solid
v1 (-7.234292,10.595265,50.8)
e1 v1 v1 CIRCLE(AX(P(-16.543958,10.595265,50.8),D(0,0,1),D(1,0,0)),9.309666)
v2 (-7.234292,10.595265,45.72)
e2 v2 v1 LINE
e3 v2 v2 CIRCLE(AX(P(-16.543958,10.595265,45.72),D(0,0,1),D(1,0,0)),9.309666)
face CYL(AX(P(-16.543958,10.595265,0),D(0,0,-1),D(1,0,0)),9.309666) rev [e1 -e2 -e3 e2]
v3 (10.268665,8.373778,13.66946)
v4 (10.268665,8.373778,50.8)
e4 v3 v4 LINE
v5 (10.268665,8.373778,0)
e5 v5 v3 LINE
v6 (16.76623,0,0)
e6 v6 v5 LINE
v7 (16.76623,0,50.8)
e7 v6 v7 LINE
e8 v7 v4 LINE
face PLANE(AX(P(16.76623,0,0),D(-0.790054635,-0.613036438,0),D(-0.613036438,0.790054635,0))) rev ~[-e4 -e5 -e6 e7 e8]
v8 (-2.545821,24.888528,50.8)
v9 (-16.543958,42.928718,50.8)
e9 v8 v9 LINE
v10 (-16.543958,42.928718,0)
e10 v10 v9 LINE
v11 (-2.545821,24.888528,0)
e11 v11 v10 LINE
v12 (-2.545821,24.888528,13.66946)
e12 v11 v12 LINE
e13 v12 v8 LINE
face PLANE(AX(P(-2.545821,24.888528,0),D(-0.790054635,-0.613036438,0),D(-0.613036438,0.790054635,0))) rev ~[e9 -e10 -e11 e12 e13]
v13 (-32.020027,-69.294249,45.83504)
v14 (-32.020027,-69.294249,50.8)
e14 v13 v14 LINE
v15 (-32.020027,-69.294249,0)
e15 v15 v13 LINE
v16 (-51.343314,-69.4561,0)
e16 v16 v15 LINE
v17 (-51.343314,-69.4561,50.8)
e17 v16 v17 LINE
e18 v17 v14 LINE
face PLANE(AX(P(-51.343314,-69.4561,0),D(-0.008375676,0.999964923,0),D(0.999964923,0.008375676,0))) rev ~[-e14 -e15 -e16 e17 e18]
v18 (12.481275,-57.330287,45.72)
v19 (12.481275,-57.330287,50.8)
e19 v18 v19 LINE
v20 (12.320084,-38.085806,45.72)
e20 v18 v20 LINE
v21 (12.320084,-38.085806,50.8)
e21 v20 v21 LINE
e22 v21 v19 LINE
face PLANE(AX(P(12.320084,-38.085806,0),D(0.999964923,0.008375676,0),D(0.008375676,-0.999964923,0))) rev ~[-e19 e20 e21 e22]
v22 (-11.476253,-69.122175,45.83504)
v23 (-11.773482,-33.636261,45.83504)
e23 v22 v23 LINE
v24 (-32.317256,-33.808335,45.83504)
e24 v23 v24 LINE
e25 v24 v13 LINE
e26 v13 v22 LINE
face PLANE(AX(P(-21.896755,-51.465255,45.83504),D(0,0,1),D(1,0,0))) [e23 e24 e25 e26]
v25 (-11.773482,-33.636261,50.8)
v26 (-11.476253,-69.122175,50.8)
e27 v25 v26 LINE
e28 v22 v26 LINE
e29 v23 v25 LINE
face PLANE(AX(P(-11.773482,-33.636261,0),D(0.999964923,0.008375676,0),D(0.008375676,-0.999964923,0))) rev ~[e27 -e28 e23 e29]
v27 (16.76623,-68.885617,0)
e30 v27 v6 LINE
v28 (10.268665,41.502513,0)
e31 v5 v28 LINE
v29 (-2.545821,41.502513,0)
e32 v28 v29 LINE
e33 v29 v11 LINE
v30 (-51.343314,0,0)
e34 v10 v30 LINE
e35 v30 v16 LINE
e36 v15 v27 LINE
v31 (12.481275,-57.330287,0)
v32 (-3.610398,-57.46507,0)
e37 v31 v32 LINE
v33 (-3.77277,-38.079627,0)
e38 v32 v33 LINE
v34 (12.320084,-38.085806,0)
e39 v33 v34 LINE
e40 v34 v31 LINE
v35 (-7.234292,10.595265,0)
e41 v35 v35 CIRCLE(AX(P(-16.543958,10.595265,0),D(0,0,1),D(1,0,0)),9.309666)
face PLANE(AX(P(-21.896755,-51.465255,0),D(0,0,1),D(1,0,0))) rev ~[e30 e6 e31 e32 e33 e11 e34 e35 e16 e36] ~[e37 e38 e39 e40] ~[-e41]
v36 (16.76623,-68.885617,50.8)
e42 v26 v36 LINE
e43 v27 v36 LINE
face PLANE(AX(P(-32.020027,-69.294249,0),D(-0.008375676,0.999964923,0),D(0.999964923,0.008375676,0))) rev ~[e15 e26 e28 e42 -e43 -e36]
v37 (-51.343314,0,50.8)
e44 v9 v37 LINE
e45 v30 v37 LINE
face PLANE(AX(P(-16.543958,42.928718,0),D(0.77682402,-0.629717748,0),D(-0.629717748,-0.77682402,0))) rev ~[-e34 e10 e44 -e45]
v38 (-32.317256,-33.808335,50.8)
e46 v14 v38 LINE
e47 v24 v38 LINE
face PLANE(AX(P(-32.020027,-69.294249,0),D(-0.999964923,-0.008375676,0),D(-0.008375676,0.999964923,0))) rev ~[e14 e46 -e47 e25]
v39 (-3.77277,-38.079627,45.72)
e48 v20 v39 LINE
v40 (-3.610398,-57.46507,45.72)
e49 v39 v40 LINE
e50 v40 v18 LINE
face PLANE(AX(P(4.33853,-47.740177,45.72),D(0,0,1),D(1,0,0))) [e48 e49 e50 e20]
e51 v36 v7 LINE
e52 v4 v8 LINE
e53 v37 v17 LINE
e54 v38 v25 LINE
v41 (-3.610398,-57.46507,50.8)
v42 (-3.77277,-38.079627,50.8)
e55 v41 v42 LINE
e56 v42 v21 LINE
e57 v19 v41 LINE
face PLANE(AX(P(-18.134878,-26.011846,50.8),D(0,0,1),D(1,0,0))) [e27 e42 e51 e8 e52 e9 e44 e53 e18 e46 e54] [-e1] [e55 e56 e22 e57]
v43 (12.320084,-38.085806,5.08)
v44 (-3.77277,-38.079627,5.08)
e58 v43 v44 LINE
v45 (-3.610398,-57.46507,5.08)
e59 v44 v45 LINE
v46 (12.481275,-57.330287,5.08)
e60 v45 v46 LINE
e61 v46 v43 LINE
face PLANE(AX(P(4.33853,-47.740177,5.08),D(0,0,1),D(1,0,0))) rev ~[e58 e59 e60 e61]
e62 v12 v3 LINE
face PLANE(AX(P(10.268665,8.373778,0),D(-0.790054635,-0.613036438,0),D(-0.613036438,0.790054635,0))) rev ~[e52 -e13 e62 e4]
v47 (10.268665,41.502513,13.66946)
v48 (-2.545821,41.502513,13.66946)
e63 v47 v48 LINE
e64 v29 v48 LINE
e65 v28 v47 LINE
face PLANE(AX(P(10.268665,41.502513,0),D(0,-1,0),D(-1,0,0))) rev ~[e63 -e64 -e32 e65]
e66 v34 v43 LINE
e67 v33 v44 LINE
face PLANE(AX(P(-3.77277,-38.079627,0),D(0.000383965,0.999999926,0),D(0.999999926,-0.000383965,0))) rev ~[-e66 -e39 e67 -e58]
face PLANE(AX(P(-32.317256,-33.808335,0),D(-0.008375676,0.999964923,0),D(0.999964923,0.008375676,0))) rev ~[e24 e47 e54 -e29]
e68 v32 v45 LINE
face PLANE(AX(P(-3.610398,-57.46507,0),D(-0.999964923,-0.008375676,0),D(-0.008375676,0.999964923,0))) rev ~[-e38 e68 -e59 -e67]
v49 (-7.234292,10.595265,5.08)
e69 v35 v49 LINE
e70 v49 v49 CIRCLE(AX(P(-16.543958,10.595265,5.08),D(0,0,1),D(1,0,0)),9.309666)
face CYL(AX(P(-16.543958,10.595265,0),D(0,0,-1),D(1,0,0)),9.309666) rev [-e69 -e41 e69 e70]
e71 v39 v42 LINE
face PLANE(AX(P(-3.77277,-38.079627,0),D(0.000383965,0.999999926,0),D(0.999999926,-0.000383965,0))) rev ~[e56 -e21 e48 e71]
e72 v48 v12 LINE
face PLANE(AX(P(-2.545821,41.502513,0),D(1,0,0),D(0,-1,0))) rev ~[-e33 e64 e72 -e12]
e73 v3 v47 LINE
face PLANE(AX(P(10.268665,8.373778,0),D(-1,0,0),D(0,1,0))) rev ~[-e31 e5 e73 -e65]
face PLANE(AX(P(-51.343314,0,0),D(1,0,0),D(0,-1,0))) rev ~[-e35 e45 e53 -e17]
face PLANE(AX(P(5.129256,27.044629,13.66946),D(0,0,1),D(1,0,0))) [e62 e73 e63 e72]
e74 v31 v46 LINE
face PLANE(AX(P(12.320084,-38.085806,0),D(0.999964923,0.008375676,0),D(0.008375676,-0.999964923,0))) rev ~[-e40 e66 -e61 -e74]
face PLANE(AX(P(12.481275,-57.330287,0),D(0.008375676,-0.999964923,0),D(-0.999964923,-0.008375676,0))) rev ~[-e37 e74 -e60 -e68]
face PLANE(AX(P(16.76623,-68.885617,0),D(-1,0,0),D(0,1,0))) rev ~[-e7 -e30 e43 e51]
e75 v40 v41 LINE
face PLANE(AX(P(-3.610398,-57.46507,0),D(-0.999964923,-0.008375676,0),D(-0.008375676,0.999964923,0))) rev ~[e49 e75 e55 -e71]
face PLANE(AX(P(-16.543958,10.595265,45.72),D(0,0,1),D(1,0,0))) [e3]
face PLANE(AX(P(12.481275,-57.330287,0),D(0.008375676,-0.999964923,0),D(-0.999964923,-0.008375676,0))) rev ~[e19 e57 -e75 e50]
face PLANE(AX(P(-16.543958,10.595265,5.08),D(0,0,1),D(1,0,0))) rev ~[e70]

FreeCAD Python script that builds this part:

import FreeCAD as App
import Part
import Sketcher
Q = App.Units.Quantity

doc = App.newDocument("Part")
body = doc.addObject("PartDesign::Body", "Body")

# Sketch on XY plane
sketch1 = doc.addObject("Sketcher::SketchObject", "Sketch")
body.addObject(sketch1)
sketch1.AttachmentSupport = (doc.XY_Plane, [""])
sketch1.MapMode = "FlatFace"
sketch1.addGeometry(Part.LineSegment(App.Vector(-51.343314, 0, 0), App.Vector(-51.343314, -69.4561, 0)), False)
sketch1.addGeometry(Part.LineSegment(App.Vector(-51.343314, -69.4561, 0), App.Vector(-32.020027, -69.294249, 0)), False)
sketch1.addGeometry(Part.LineSegment(App.Vector(-32.020027, -69.294249, 0), App.Vector(-32.317256, -33.808335, 0)), False)
sketch1.addGeometry(Part.LineSegment(App.Vector(-32.317256, -33.808335, 0), App.Vector(-11.773482, -33.636261, 0)), False)
sketch1.addGeometry(Part.LineSegment(App.Vector(-11.773482, -33.636261, 0), App.Vector(-11.476253, -69.122175, 0)), False)
sketch1.addGeometry(Part.LineSegment(App.Vector(-11.476253, -69.122175, 0), App.Vector(16.76623, -68.885617, 0)), False)
sketch1.addGeometry(Part.LineSegment(App.Vector(16.76623, -68.885617, 0), App.Vector(16.76623, 0, 0)), False)
sketch1.addGeometry(Part.LineSegment(App.Vector(16.76623, 0, 0), App.Vector(10.268665, 8.373778, 0)), False)
sketch1.addGeometry(Part.LineSegment(App.Vector(10.268665, 8.373778, 0), App.Vector(-2.545821, 24.888528, 0)), False)
sketch1.addGeometry(Part.LineSegment(App.Vector(-2.545821, 24.888528, 0), App.Vector(-16.543958, 42.928718, 0)), False)
sketch1.addGeometry(Part.LineSegment(App.Vector(-16.543958, 42.928718, 0), App.Vector(-51.343314, 0, 0)), False)
sketch1.addGeometry(Part.LineSegment(App.Vector(12.481275, -57.330287, 0), App.Vector(-3.610398, -57.46507, 0)), False)
sketch1.addGeometry(Part.LineSegment(App.Vector(-3.610398, -57.46507, 0), App.Vector(-3.77277, -38.079627, 0)), False)
sketch1.addGeometry(Part.LineSegment(App.Vector(-3.77277, -38.079627, 0), App.Vector(12.320084, -38.085806, 0)), False)
sketch1.addGeometry(Part.LineSegment(App.Vector(12.320084, -38.085806, 0), App.Vector(12.481275, -57.330287, 0)), False)
sketch1.addGeometry(Part.Circle(App.Vector(-16.543958, 10.595265, 0), App.Vector(0, 0, 1), 9.309666), False)
sketch1.addConstraint(Sketcher.Constraint("Coincident", 0, 2, 1, 1))
sketch1.addConstraint(Sketcher.Constraint("Coincident", 1, 2, 2, 1))
sketch1.addConstraint(Sketcher.Constraint("Coincident", 2, 2, 3, 1))
sketch1.addConstraint(Sketcher.Constraint("Coincident", 3, 2, 4, 1))
sketch1.addConstraint(Sketcher.Constraint("Coincident", 4, 2, 5, 1))
sketch1.addConstraint(Sketcher.Constraint("Coincident", 5, 2, 6, 1))
sketch1.addConstraint(Sketcher.Constraint("Coincident", 6, 2, 7, 1))
sketch1.addConstraint(Sketcher.Constraint("Coincident", 7, 2, 8, 1))
sketch1.addConstraint(Sketcher.Constraint("Coincident", 8, 2, 9, 1))
sketch1.addConstraint(Sketcher.Constraint("Coincident", 9, 2, 10, 1))
sketch1.addConstraint(Sketcher.Constraint("Coincident", 10, 2, 0, 1))
sketch1.addConstraint(Sketcher.Constraint("Coincident", 11, 2, 12, 1))
sketch1.addConstraint(Sketcher.Constraint("Coincident", 12, 2, 13, 1))
sketch1.addConstraint(Sketcher.Constraint("Coincident", 13, 2, 14, 1))
sketch1.addConstraint(Sketcher.Constraint("Coincident", 14, 2, 11, 1))
sketch1.addConstraint(Sketcher.Constraint("Vertical", 0))
sketch1.addConstraint(Sketcher.Constraint("Vertical", 6))
sketch1.addConstraint(Sketcher.Constraint("PointOnObject", 6, 2, -1))
sketch1.addConstraint(Sketcher.Constraint("PointOnObject", 10, 2, -1))
sketch1.addConstraint(Sketcher.Constraint("Perpendicular", 1, 2))
sketch1.addConstraint(Sketcher.Constraint("Perpendicular", 2, 3))
sketch1.addConstraint(Sketcher.Constraint("Perpendicular", 3, 4))
sketch1.addConstraint(Sketcher.Constraint("Perpendicular", 4, 5))
sketch1.addConstraint(Sketcher.Constraint("Parallel", 7, 8))
sketch1.addConstraint(Sketcher.Constraint("Parallel", 8, 9))
sketch1.addConstraint(Sketcher.Constraint("Parallel", 5, 11))
sketch1.addConstraint(Sketcher.Constraint("Perpendicular", 11, 12))
sketch1.addConstraint(Sketcher.Constraint("Parallel", 12, 14))
sketch1.addConstraint(Sketcher.Constraint("Vertical", 15, 3, 9, 2))
sketch1.addConstraint(Sketcher.Constraint("Equal", 2, 4))
sketch1.addConstraint(Sketcher.Constraint("Diameter", 15, Q("18.619332 mm")))
sketch1.addConstraint(Sketcher.Constraint("DistanceY", 0, 2, 0, 1, Q("69.4561 mm")))
sketch1.addConstraint(Sketcher.Constraint("DistanceY", 2, 2, 8, 2, Q("2.3109001 in")))
sketch1.addConstraint(Sketcher.Constraint("DistanceY", 14, 2, 12, 2, Q("0.7579 in")))
sketch1.addConstraint(Sketcher.Constraint("Distance", 8, Q("20.903301 mm")))
sketch1.addConstraint(Sketcher.Constraint("DistanceY", 2, 2, 15, 3, Q("44.4036 mm")))
sketch1.addConstraint(Sketcher.Constraint("DistanceX", 12, 2, 5, 2, Q("20.538999 mm")))
sketch1.addConstraint(Sketcher.Constraint("Distance", 2, Q("35.487159 mm")))
sketch1.addConstraint(Sketcher.Constraint("Distance", 10, Q("55.261831 mm")))
sketch1.addConstraint(Sketcher.Constraint("DistanceY", 6, 1, 6, 2, Q("68.885617 mm")))
sketch1.addConstraint(Sketcher.Constraint("DistanceX", 15, 3, -1, 1, Q("16.543958 mm")))
sketch1.addConstraint(Sketcher.Constraint("DistanceY", 1, 2, -1, 1, Q("69.294249 mm")))
sketch1.addConstraint(Sketcher.Constraint("DistanceY", 3, 2, -1, 1, Q("33.636261 mm")))
sketch1.addConstraint(Sketcher.Constraint("DistanceX", -1, 1, 5, 2, Q("16.76623 mm")))
sketch1.addConstraint(Sketcher.Constraint("DistanceY", -1, 1, 7, 2, Q("8.373778 mm")))
sketch1.addConstraint(Sketcher.Constraint("DistanceY", 11, 2, -1, 1, Q("57.46507 mm")))
sketch1.addConstraint(Sketcher.Constraint("DistanceY", 12, 2, 2, 2, Q("4.271292 mm")))
sketch1.addConstraint(Sketcher.Constraint("DistanceY", 13, 2, 12, 2, Q("0.006179 mm")))
pad1 = doc.addObject("PartDesign::Pad", "Pad")
body.addObject(pad1)
pad1.Profile = sketch1
pad1.Length = Q("2 in")

# Sketch on XY plane
sketch2 = doc.addObject("Sketcher::SketchObject", "Sketch001")
body.addObject(sketch2)
sketch2.AttachmentSupport = (doc.XY_Plane, [""])
sketch2.MapMode = "FlatFace"
sketch2.addGeometry(Part.LineSegment(App.Vector(-2.545821, 41.502513, 0), App.Vector(-2.545821, 24.888528, 0)), False)
sketch2.addGeometry(Part.LineSegment(App.Vector(-2.545821, 24.888528, 0), App.Vector(10.268665, 8.373778, 0)), False)
sketch2.addGeometry(Part.LineSegment(App.Vector(10.268665, 8.373778, 0), App.Vector(10.268665, 41.502513, 0)), False)
sketch2.addGeometry(Part.LineSegment(App.Vector(10.268665, 41.502513, 0), App.Vector(-2.545821, 41.502513, 0)), False)
sketch2.addConstraint(Sketcher.Constraint("Coincident", 0, 2, 1, 1))
sketch2.addConstraint(Sketcher.Constraint("Coincident", 1, 2, 2, 1))
sketch2.addConstraint(Sketcher.Constraint("Coincident", 2, 2, 3, 1))
sketch2.addConstraint(Sketcher.Constraint("Coincident", 3, 2, 0, 1))
sketch2.addConstraint(Sketcher.Constraint("Vertical", 0))
sketch2.addConstraint(Sketcher.Constraint("Vertical", 2))
sketch2.addConstraint(Sketcher.Constraint("Horizontal", 3))
sketch2.addConstraint(Sketcher.Constraint("Distance", 1, Q("20.903301 mm")))
sketch2.addConstraint(Sketcher.Constraint("DistanceX", 3, 2, 3, 1, Q("12.814485 mm")))
sketch2.addConstraint(Sketcher.Constraint("DistanceY", 0, 2, 0, 1, Q("16.613985 mm")))
sketch2.addConstraint(Sketcher.Constraint("DistanceX", 0, 2, -1, 1, Q("2.545821 mm")))
sketch2.addConstraint(Sketcher.Constraint("DistanceY", -1, 1, 0, 2, Q("24.888528 mm")))
pad2 = doc.addObject("PartDesign::Pad", "Pad001")
body.addObject(pad2)
pad2.Profile = sketch2
pad2.Length = 13.66946

# Sketch on XY plane
sketch3 = doc.addObject("Sketcher::SketchObject", "Sketch002")
body.addObject(sketch3)
sketch3.AttachmentSupport = (doc.XY_Plane, [""])
sketch3.MapMode = "FlatFace"
sketch3.addGeometry(Part.LineSegment(App.Vector(-32.317256, -33.808335, 0), App.Vector(-32.020027, -69.294249, 0)), False)
sketch3.addGeometry(Part.LineSegment(App.Vector(-32.020027, -69.294249, 0), App.Vector(-11.476253, -69.122175, 0)), False)
sketch3.addGeometry(Part.LineSegment(App.Vector(-11.476253, -69.122175, 0), App.Vector(-11.773482, -33.636261, 0)), False)
sketch3.addGeometry(Part.LineSegment(App.Vector(-11.773482, -33.636261, 0), App.Vector(-32.317256, -33.808335, 0)), False)
sketch3.addConstraint(Sketcher.Constraint("Coincident", 0, 2, 1, 1))
sketch3.addConstraint(Sketcher.Constraint("Coincident", 1, 2, 2, 1))
sketch3.addConstraint(Sketcher.Constraint("Coincident", 2, 2, 3, 1))
sketch3.addConstraint(Sketcher.Constraint("Coincident", 3, 2, 0, 1))
sketch3.addConstraint(Sketcher.Constraint("Perpendicular", 0, 1))
sketch3.addConstraint(Sketcher.Constraint("Perpendicular", 1, 2))
sketch3.addConstraint(Sketcher.Constraint("Perpendicular", 2, 3))
sketch3.addConstraint(Sketcher.Constraint("Distance", 0, Q("35.487159 mm")))
sketch3.addConstraint(Sketcher.Constraint("DistanceY", 0, 2, -1, 1, Q("69.294249 mm")))
sketch3.addConstraint(Sketcher.Constraint("DistanceY", 2, 2, -1, 1, Q("33.636261 mm")))
sketch3.addConstraint(Sketcher.Constraint("DistanceX", 2, 2, 1, 2, Q("0.297229 mm")))
sketch3.addConstraint(Sketcher.Constraint("DistanceX", 0, 2, -1, 1, Q("32.020027 mm")))
pad3 = doc.addObject("PartDesign::Pad", "Pad002")
body.addObject(pad3)
pad3.Profile = sketch3
pad3.Length = 45.83504

# Sketch on XY plane
sketch4 = doc.addObject("Sketcher::SketchObject", "Sketch003")
body.addObject(sketch4)
sketch4.AttachmentSupport = (doc.XY_Plane, [""])
sketch4.MapMode = "FlatFace"
sketch4.AttachmentOffset = App.Placement(App.Vector(0, 0, 0.2 * 25.4), App.Rotation())
sketch4.addGeometry(Part.LineSegment(App.Vector(12.320084, -38.085806, 0), App.Vector(-3.77277, -38.079627, 0)), False)
sketch4.addGeometry(Part.LineSegment(App.Vector(-3.77277, -38.079627, 0), App.Vector(-3.610398, -57.46507, 0)), False)
sketch4.addGeometry(Part.LineSegment(App.Vector(-3.610398, -57.46507, 0), App.Vector(12.481275, -57.330287, 0)), False)
sketch4.addGeometry(Part.LineSegment(App.Vector(12.481275, -57.330287, 0), App.Vector(12.320084, -38.085806, 0)), False)
sketch4.addConstraint(Sketcher.Constraint("Coincident", 0, 2, 1, 1))
sketch4.addConstraint(Sketcher.Constraint("Coincident", 1, 2, 2, 1))
sketch4.addConstraint(Sketcher.Constraint("Coincident", 2, 2, 3, 1))
sketch4.addConstraint(Sketcher.Constraint("Coincident", 3, 2, 0, 1))
sketch4.addConstraint(Sketcher.Constraint("Perpendicular", 1, 2))
sketch4.addConstraint(Sketcher.Constraint("Perpendicular", 2, 3))
sketch4.addConstraint(Sketcher.Constraint("DistanceY", 2, 2, 0, 2, Q("0.7579 in")))
sketch4.addConstraint(Sketcher.Constraint("DistanceX", 0, 2, -1, 1, Q("3.77277 mm")))
sketch4.addConstraint(Sketcher.Constraint("DistanceY", 1, 2, -1, 1, Q("57.46507 mm")))
sketch4.addConstraint(Sketcher.Constraint("DistanceX", 0, 2, 1, 2, Q("0.162372 mm")))
sketch4.addConstraint(Sketcher.Constraint("DistanceY", 3, 2, 0, 2, Q("0.006179 mm")))
sketch4.addConstraint(Sketcher.Constraint("DistanceX", 1, 2, 3, 2, Q("15.930481 mm")))
pad4 = doc.addObject("PartDesign::Pad", "Pad003")
body.addObject(pad4)
pad4.Profile = sketch4
pad4.Length = Q("1.6 in")

# Sketch on XY plane
sketch5 = doc.addObject("Sketcher::SketchObject", "Sketch004")
body.addObject(sketch5)
sketch5.AttachmentSupport = (doc.XY_Plane, [""])
sketch5.MapMode = "FlatFace"
sketch5.AttachmentOffset = App.Placement(App.Vector(0, 0, 0.2 * 25.4), App.Rotation())
sketch5.addGeometry(Part.Circle(App.Vector(-16.543958, 10.595265, 0), App.Vector(0, 0, 1), 9.309666), False)
sketch5.addConstraint(Sketcher.Constraint("Diameter", 0, Q("18.619332 mm")))
sketch5.addConstraint(Sketcher.Constraint("DistanceX", 0, 3, -1, 1, Q("16.543958 mm")))
sketch5.addConstraint(Sketcher.Constraint("DistanceY", -1, 1, 0, 3, Q("10.595265 mm")))
pad5 = doc.addObject("PartDesign::Pad", "Pad004")
body.addObject(pad5)
pad5.Profile = sketch5
pad5.Length = Q("1.6 in")

doc.recompute()
